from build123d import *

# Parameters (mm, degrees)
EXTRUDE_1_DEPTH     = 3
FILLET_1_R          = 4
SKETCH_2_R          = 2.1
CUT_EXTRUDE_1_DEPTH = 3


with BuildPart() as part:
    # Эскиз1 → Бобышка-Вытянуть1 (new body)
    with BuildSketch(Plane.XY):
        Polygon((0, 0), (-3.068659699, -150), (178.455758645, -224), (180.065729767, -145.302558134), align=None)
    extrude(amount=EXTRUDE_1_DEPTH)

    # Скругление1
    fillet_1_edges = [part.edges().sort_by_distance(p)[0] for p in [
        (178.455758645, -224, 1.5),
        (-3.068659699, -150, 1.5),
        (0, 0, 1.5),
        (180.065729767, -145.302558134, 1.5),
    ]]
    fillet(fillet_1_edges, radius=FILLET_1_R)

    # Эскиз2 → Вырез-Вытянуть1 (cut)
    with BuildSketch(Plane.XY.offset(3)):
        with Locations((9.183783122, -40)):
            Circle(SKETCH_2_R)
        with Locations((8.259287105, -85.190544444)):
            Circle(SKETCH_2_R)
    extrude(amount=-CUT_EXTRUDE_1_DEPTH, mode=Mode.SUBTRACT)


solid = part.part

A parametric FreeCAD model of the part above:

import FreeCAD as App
import Part
import Sketcher
Q = App.Units.Quantity


def edges_at(feature, points):
    """Names of the edges that pass closest to the given points."""
    edges = feature.Shape.Edges
    near = lambda p: min(range(len(edges)), key=lambda i: edges[i].distToShape(Part.Vertex(*p))[0])
    return sorted({f"Edge{near(p) + 1}" for p in points})

doc = App.newDocument("Part")
body = doc.addObject("PartDesign::Body", "Body")

sketch1 = body.newObject("Sketcher::SketchObject", "Sketch")
sketch1.AttachmentSupport = (doc.getObject("XY_Plane"), [""])
sketch1.MapMode = "FlatFace"
sketch1.addGeometry(Part.LineSegment(App.Vector(0, 0, 0), App.Vector(-3.06866, -150, 0)), False)
sketch1.addGeometry(Part.LineSegment(App.Vector(-3.06866, -150, 0), App.Vector(178.455759, -224, 0)), False)
sketch1.addGeometry(Part.LineSegment(App.Vector(178.455759, -224, 0), App.Vector(180.06573, -145.302558, 0)), False)
sketch1.addGeometry(Part.LineSegment(App.Vector(180.06573, -145.302558, 0), App.Vector(0, 0, 0)), False)
sketch1.addConstraint(Sketcher.Constraint("Coincident", 0, 2, 1, 1))
sketch1.addConstraint(Sketcher.Constraint("Coincident", 1, 2, 2, 1))
sketch1.addConstraint(Sketcher.Constraint("Coincident", 2, 2, 3, 1))
sketch1.addConstraint(Sketcher.Constraint("Coincident", 3, 2, 0, 1))
sketch1.addConstraint(Sketcher.Constraint("Coincident", 3, 2, -1, 1))
sketch1.addConstraint(Sketcher.Constraint("Parallel", 0, 2))
sketch1.addConstraint(Sketcher.Constraint("DistanceY", 0, 2, -1, 1, Q("150 mm")))
sketch1.addConstraint(Sketcher.Constraint("DistanceY", 1, 2, -1, 1, Q("224 mm")))
sketch1.addConstraint(Sketcher.Constraint("Distance", 1, Q("196.028351 mm")))
sketch1.addConstraint(Sketcher.Constraint("Distance", 2, Q("78.713908 mm")))
sketch1.addConstraint(Sketcher.Constraint("Distance", 3, Q("231.379559 mm")))
pad1 = body.newObject("PartDesign::Pad", "Pad")
pad1.Profile = sketch1
pad1.Length = 3
doc.recompute()

fillet = body.newObject("PartDesign::Fillet", "Fillet")
fillet.Base = (pad1, edges_at(pad1, [
    (178.456, -224, 1.5),
    (-3.069, -150, 1.5),
    (0, 0, 1.5),
    (180.066, -145.303, 1.5),
]))
fillet.Radius = 4

sketch2 = body.newObject("Sketcher::SketchObject", "Sketch001")
sketch2.AttachmentSupport = (doc.getObject("XY_Plane"), [""])
sketch2.MapMode = "FlatFace"
sketch2.AttachmentOffset = App.Placement(App.Vector(0, 0, 3), App.Rotation())
sketch2.addGeometry(Part.Circle(App.Vector(9.183783, -40, 0), App.Vector(0, 0, 1), 2.1), False)
sketch2.addGeometry(Part.Circle(App.Vector(8.259287, -85.190544, 0), App.Vector(0, 0, 1), 2.1), False)
sketch2.addConstraint(Sketcher.Constraint("Equal", 0, 1))
sketch2.addConstraint(Sketcher.Constraint("Diameter", 0, Q("4.2 mm")))
sketch2.addConstraint(Sketcher.Constraint("DistanceY", 0, 3, -1, 1, Q("40 mm")))
sketch2.addConstraint(Sketcher.Constraint("DistanceX", -1, 1, 0, 3, Q("9.183783 mm")))
sketch2.addConstraint(Sketcher.Constraint("DistanceX", -1, 1, 1, 3, Q("8.259287 mm")))
sketch2.addConstraint(Sketcher.Constraint("DistanceY", 1, 3, -1, 1, Q("85.190544 mm")))
pocket1 = body.newObject("PartDesign::Pocket", "Pocket")
pocket1.Profile = sketch2
pocket1.Length = 3

doc.recompute()
